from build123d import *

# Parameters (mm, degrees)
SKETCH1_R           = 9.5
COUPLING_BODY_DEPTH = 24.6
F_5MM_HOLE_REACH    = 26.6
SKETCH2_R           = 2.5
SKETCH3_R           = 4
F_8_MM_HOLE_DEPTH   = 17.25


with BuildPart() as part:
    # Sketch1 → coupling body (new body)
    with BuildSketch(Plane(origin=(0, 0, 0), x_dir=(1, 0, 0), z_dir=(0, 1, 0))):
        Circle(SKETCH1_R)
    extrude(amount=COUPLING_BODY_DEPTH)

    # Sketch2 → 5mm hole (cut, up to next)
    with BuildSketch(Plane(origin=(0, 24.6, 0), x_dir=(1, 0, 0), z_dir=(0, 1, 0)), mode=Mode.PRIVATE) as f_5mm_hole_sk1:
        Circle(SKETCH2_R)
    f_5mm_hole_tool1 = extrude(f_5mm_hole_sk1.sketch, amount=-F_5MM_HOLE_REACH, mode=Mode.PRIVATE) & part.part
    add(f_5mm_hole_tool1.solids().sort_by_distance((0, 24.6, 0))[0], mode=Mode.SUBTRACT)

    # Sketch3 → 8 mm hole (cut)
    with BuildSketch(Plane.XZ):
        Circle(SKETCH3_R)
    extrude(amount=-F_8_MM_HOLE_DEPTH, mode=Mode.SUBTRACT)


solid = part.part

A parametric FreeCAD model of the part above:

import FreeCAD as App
import Part
import Sketcher
from FreeCAD import Vector

doc = App.newDocument("Part")
body = doc.addObject("PartDesign::Body", "Body")

sketch1 = body.newObject("Sketcher::SketchObject", "Sketch")
sketch1.AttachmentSupport = (doc.getObject("XZ_Plane"), [""])
sketch1.MapMode = "FlatFace"
sketch1.addGeometry(Part.Circle(Vector(0, 0, 0), Vector(0, 0, 1), 10), False)
sketch1.addConstraint([
    Sketcher.Constraint("Coincident", 0, 3, -1, 1),
    Sketcher.Constraint("Diameter", 0, 19.0),
])
pad1 = body.newObject("PartDesign::Pad", "Pad")
pad1.Profile = sketch1
pad1.Length = 24.6
pad1.Reversed = True

sketch2 = body.newObject("Sketcher::SketchObject", "Sketch001")
sketch2.AttachmentSupport = (doc.getObject("XZ_Plane"), [""])
sketch2.MapMode = "FlatFace"
sketch2.AttachmentOffset = App.Placement(Vector(0, 0, -24.6), App.Rotation())
sketch2.addGeometry(Part.Circle(Vector(0, 0, 0), Vector(0, 0, 1), 2.5), False)
sketch2.addConstraint([
    Sketcher.Constraint("Coincident", 0, 3, -1, 1),
    Sketcher.Constraint("Diameter", 0, 5.0),
])
pocket1 = body.newObject("PartDesign::Pocket", "Pocket")
pocket1.Profile = sketch2
pocket1.Type = "UpToFirst"
pocket1.Reversed = True

sketch3 = body.newObject("Sketcher::SketchObject", "Sketch002")
sketch3.AttachmentSupport = (doc.getObject("XZ_Plane"), [""])
sketch3.MapMode = "FlatFace"
sketch3.addGeometry(Part.Circle(Vector(0, 0, 0), Vector(0, 0, 1), 4), False)
sketch3.addConstraint([
    Sketcher.Constraint("Coincident", 0, 3, -1, 1),
    Sketcher.Constraint("Diameter", 0, 8.0),
])
pocket2 = body.newObject("PartDesign::Pocket", "Pocket001")
pocket2.Profile = sketch3
pocket2.Length = 17.25

doc.recompute()
